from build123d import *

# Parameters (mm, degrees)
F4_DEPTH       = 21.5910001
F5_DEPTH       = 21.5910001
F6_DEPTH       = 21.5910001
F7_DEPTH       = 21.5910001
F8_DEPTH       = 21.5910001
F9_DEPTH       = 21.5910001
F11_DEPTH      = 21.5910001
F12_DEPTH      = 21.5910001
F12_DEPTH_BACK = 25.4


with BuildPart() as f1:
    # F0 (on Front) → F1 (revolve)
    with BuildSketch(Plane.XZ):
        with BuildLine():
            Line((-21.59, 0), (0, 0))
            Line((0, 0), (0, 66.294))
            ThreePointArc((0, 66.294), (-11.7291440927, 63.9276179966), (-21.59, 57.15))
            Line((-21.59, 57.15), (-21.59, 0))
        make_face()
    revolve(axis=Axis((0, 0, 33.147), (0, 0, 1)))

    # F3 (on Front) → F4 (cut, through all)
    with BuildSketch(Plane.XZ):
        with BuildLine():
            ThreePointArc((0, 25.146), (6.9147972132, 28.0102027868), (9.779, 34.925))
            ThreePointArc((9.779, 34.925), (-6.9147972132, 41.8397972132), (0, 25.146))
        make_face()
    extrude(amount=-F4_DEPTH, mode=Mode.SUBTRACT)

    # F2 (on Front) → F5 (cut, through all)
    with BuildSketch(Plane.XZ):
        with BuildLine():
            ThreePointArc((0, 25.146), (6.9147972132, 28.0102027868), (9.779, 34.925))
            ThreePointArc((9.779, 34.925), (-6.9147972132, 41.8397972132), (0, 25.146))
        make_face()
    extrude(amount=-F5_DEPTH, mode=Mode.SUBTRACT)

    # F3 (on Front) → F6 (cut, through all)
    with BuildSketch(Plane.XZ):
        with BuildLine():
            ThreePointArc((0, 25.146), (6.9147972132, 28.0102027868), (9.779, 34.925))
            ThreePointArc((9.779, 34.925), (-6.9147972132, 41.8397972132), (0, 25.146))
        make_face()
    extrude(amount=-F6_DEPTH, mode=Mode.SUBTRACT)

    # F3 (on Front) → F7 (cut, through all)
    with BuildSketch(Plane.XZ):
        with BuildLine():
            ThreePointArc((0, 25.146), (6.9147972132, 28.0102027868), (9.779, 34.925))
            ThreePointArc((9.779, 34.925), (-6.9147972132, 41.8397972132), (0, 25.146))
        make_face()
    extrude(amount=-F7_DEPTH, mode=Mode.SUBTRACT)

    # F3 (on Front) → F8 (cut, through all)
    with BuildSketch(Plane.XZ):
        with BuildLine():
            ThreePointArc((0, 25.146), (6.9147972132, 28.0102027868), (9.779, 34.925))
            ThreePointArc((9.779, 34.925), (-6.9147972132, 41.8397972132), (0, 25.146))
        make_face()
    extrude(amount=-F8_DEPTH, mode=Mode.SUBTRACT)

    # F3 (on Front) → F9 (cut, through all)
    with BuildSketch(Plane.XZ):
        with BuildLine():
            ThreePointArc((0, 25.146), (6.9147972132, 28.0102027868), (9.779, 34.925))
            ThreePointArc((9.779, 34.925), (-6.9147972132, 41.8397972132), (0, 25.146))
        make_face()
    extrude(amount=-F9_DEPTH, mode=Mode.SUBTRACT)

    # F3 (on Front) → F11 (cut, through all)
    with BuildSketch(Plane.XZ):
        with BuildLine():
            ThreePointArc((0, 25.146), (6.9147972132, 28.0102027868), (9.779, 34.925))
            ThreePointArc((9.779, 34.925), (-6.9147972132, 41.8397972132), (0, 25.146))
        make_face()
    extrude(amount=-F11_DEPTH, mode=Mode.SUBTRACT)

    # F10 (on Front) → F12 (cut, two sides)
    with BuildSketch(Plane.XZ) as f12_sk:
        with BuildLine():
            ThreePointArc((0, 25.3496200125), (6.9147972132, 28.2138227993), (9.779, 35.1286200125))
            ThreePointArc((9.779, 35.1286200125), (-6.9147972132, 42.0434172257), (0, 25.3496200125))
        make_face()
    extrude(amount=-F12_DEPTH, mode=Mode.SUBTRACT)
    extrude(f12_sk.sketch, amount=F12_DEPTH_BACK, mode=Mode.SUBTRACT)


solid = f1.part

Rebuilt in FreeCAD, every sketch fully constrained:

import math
import FreeCAD as App
import Part
import Sketcher
Q = App.Units.Quantity

doc = App.newDocument("Part")
body = doc.addObject("PartDesign::Body", "Body")

# Sketch on XZ plane
sketch1 = body.newObject("Sketcher::SketchObject", "Sketch")
sketch1.AttachmentSupport = (doc.getObject("XZ_Plane"), [""])
sketch1.MapMode = "FlatFace"
sketch1.addGeometry([
    Part.LineSegment(App.Vector(-21.59, 0, 0), App.Vector(0, 0, 0)),
    Part.LineSegment(App.Vector(0, 0, 0), App.Vector(0, 66.294, 0)),
    Part.ArcOfCircle(Part.Circle(App.Vector(-0.073657, 36.407717, 0), App.Vector(0, 0, 1), 29.886373), math.radians(89.858791), math.radians(136.049382)),
    Part.LineSegment(App.Vector(-21.59, 57.15, 0), App.Vector(-21.59, 0, 0)),
], False)
sketch1.addConstraint([
    Sketcher.Constraint("Coincident", 0, 2, 1, 1),
    Sketcher.Constraint("Coincident", 1, 2, 2, 1),
    Sketcher.Constraint("Coincident", 2, 2, 3, 1),
    Sketcher.Constraint("Coincident", 3, 2, 0, 1),
    Sketcher.Constraint("Horizontal", 0),
    Sketcher.Constraint("Vertical", 1),
    Sketcher.Constraint("Vertical", 3),
    Sketcher.Constraint("Coincident", 0, 2, -1, 1),
    Sketcher.Constraint("DistanceX", 0, 1, 0, 2, Q("0.85 in")),
    Sketcher.Constraint("DistanceY", 1, 1, 1, 2, Q("2.61 in")),
    Sketcher.Constraint("DistanceY", 3, 2, 3, 1, Q("2.25 in")),
    Sketcher.Constraint("DistanceX", 2, 3, -1, 1, Q("0.0028999 in")),
])
revolution = body.newObject("PartDesign::Revolution", "Revolution")
revolution.Profile = sketch1
revolution.ReferenceAxis = (sketch1, ["V_Axis"])
revolution.Angle = 360

# Sketch on XZ plane
sketch2 = body.newObject("Sketcher::SketchObject", "Sketch001")
sketch2.AttachmentSupport = (doc.getObject("XZ_Plane"), [""])
sketch2.MapMode = "FlatFace"
sketch2.addGeometry([
    Part.ArcOfCircle(Part.Circle(App.Vector(0, 34.925, 0), App.Vector(0, 0, 1), 9.779), math.radians(-90), math.radians(0)),
    Part.ArcOfCircle(Part.Circle(App.Vector(0, 34.925, 0), App.Vector(0, 0, 1), 9.779), math.radians(0), math.radians(270)),
], False)
sketch2.addConstraint([
    Sketcher.Constraint("Tangent", 0, 1, 1, 2),
    Sketcher.Constraint("Coincident", 1, 1, 0, 2),
    Sketcher.Constraint("PointOnObject", 0, 3, -2),
    Sketcher.Constraint("PointOnObject", 0, 1, -2),
    Sketcher.Constraint("Horizontal", 0, 3, 1, 1),
    Sketcher.Constraint("Radius", 0, Q("0.385 in")),
    Sketcher.Constraint("DistanceY", -1, 1, 0, 1, Q("0.99 in")),
])
pocket1 = body.newObject("PartDesign::Pocket", "Pocket")
pocket1.Profile = sketch2
pocket1.Type = "ThroughAll"

# Sketch on XZ plane
sketch3 = body.newObject("Sketcher::SketchObject", "Sketch002")
sketch3.AttachmentSupport = (doc.getObject("XZ_Plane"), [""])
sketch3.MapMode = "FlatFace"
sketch3.addGeometry([
    Part.ArcOfCircle(Part.Circle(App.Vector(0, 34.925, 0), App.Vector(0, 0, 1), 9.779), math.radians(-90), math.radians(0)),
    Part.ArcOfCircle(Part.Circle(App.Vector(0, 34.925, 0), App.Vector(0, 0, 1), 9.779), math.radians(0), math.radians(270)),
], False)
sketch3.addConstraint([
    Sketcher.Constraint("Tangent", 0, 1, 1, 2),
    Sketcher.Constraint("Coincident", 1, 1, 0, 2),
    Sketcher.Constraint("PointOnObject", 0, 3, -2),
    Sketcher.Constraint("PointOnObject", 0, 1, -2),
    Sketcher.Constraint("Horizontal", 0, 3, 1, 1),
    Sketcher.Constraint("Radius", 0, Q("0.385 in")),
    Sketcher.Constraint("DistanceY", -1, 1, 0, 1, Q("0.99 in")),
])
pocket2 = body.newObject("PartDesign::Pocket", "Pocket001")
pocket2.Profile = sketch3
pocket2.Type = "ThroughAll"

# Sketch on XZ plane
sketch4 = body.newObject("Sketcher::SketchObject", "Sketch003")
sketch4.AttachmentSupport = (doc.getObject("XZ_Plane"), [""])
sketch4.MapMode = "FlatFace"
sketch4.addGeometry([
    Part.ArcOfCircle(Part.Circle(App.Vector(0, 34.925, 0), App.Vector(0, 0, 1), 9.779), math.radians(-90), math.radians(0)),
    Part.ArcOfCircle(Part.Circle(App.Vector(0, 34.925, 0), App.Vector(0, 0, 1), 9.779), math.radians(0), math.radians(270)),
], False)
sketch4.addConstraint([
    Sketcher.Constraint("Tangent", 0, 1, 1, 2),
    Sketcher.Constraint("Coincident", 1, 1, 0, 2),
    Sketcher.Constraint("PointOnObject", 0, 3, -2),
    Sketcher.Constraint("PointOnObject", 0, 1, -2),
    Sketcher.Constraint("Horizontal", 0, 3, 1, 1),
    Sketcher.Constraint("Radius", 0, Q("0.385 in")),
    Sketcher.Constraint("DistanceY", -1, 1, 0, 1, Q("0.99 in")),
])
pocket3 = body.newObject("PartDesign::Pocket", "Pocket002")
pocket3.Profile = sketch4
pocket3.Type = "ThroughAll"

# Sketch on XZ plane
sketch5 = body.newObject("Sketcher::SketchObject", "Sketch004")
sketch5.AttachmentSupport = (doc.getObject("XZ_Plane"), [""])
sketch5.MapMode = "FlatFace"
sketch5.addGeometry([
    Part.ArcOfCircle(Part.Circle(App.Vector(0, 34.925, 0), App.Vector(0, 0, 1), 9.779), math.radians(-90), math.radians(0)),
    Part.ArcOfCircle(Part.Circle(App.Vector(0, 34.925, 0), App.Vector(0, 0, 1), 9.779), math.radians(0), math.radians(270)),
], False)
sketch5.addConstraint([
    Sketcher.Constraint("Tangent", 0, 1, 1, 2),
    Sketcher.Constraint("Coincident", 1, 1, 0, 2),
    Sketcher.Constraint("PointOnObject", 0, 3, -2),
    Sketcher.Constraint("PointOnObject", 0, 1, -2),
    Sketcher.Constraint("Horizontal", 0, 3, 1, 1),
    Sketcher.Constraint("Radius", 0, Q("0.385 in")),
    Sketcher.Constraint("DistanceY", -1, 1, 0, 1, Q("0.99 in")),
])
pocket4 = body.newObject("PartDesign::Pocket", "Pocket003")
pocket4.Profile = sketch5
pocket4.Type = "ThroughAll"

# Sketch on XZ plane
sketch6 = body.newObject("Sketcher::SketchObject", "Sketch005")
sketch6.AttachmentSupport = (doc.getObject("XZ_Plane"), [""])
sketch6.MapMode = "FlatFace"
sketch6.addGeometry([
    Part.ArcOfCircle(Part.Circle(App.Vector(0, 34.925, 0), App.Vector(0, 0, 1), 9.779), math.radians(-90), math.radians(0)),
    Part.ArcOfCircle(Part.Circle(App.Vector(0, 34.925, 0), App.Vector(0, 0, 1), 9.779), math.radians(0), math.radians(270)),
], False)
sketch6.addConstraint([
    Sketcher.Constraint("Tangent", 0, 1, 1, 2),
    Sketcher.Constraint("Coincident", 1, 1, 0, 2),
    Sketcher.Constraint("PointOnObject", 0, 3, -2),
    Sketcher.Constraint("PointOnObject", 0, 1, -2),
    Sketcher.Constraint("Horizontal", 0, 3, 1, 1),
    Sketcher.Constraint("Radius", 0, Q("0.385 in")),
    Sketcher.Constraint("DistanceY", -1, 1, 0, 1, Q("0.99 in")),
])
pocket5 = body.newObject("PartDesign::Pocket", "Pocket004")
pocket5.Profile = sketch6
pocket5.Type = "ThroughAll"

# Sketch on XZ plane
sketch7 = body.newObject("Sketcher::SketchObject", "Sketch006")
sketch7.AttachmentSupport = (doc.getObject("XZ_Plane"), [""])
sketch7.MapMode = "FlatFace"
sketch7.addGeometry([
    Part.ArcOfCircle(Part.Circle(App.Vector(0, 34.925, 0), App.Vector(0, 0, 1), 9.779), math.radians(-90), math.radians(0)),
    Part.ArcOfCircle(Part.Circle(App.Vector(0, 34.925, 0), App.Vector(0, 0, 1), 9.779), math.radians(0), math.radians(270)),
], False)
sketch7.addConstraint([
    Sketcher.Constraint("Tangent", 0, 1, 1, 2),
    Sketcher.Constraint("Coincident", 1, 1, 0, 2),
    Sketcher.Constraint("PointOnObject", 0, 3, -2),
    Sketcher.Constraint("PointOnObject", 0, 1, -2),
    Sketcher.Constraint("Horizontal", 0, 3, 1, 1),
    Sketcher.Constraint("Radius", 0, Q("0.385 in")),
    Sketcher.Constraint("DistanceY", -1, 1, 0, 1, Q("0.99 in")),
])
pocket6 = body.newObject("PartDesign::Pocket", "Pocket005")
pocket6.Profile = sketch7
pocket6.Type = "ThroughAll"

# Sketch on XZ plane
sketch8 = body.newObject("Sketcher::SketchObject", "Sketch007")
sketch8.AttachmentSupport = (doc.getObject("XZ_Plane"), [""])
sketch8.MapMode = "FlatFace"
sketch8.addGeometry([
    Part.ArcOfCircle(Part.Circle(App.Vector(0, 34.925, 0), App.Vector(0, 0, 1), 9.779), math.radians(-90), math.radians(0)),
    Part.ArcOfCircle(Part.Circle(App.Vector(0, 34.925, 0), App.Vector(0, 0, 1), 9.779), math.radians(0), math.radians(270)),
], False)
sketch8.addConstraint([
    Sketcher.Constraint("Tangent", 0, 1, 1, 2),
    Sketcher.Constraint("Coincident", 1, 1, 0, 2),
    Sketcher.Constraint("PointOnObject", 0, 3, -2),
    Sketcher.Constraint("PointOnObject", 0, 1, -2),
    Sketcher.Constraint("Horizontal", 0, 3, 1, 1),
    Sketcher.Constraint("Radius", 0, Q("0.385 in")),
    Sketcher.Constraint("DistanceY", -1, 1, 0, 1, Q("0.99 in")),
])
pocket7 = body.newObject("PartDesign::Pocket", "Pocket006")
pocket7.Profile = sketch8
pocket7.Type = "ThroughAll"

# Sketch on XZ plane
sketch9 = body.newObject("Sketcher::SketchObject", "Sketch008")
sketch9.AttachmentSupport = (doc.getObject("XZ_Plane"), [""])
sketch9.MapMode = "FlatFace"
sketch9.addGeometry([
    Part.ArcOfCircle(Part.Circle(App.Vector(0, 35.12862, 0), App.Vector(0, 0, 1), 9.779), math.radians(-90), math.radians(0)),
    Part.ArcOfCircle(Part.Circle(App.Vector(0, 35.12862, 0), App.Vector(0, 0, 1), 9.779), math.radians(0), math.radians(270)),
], False)
sketch9.addConstraint([
    Sketcher.Constraint("Tangent", 0, 1, 1, 2),
    Sketcher.Constraint("Coincident", 1, 1, 0, 2),
    Sketcher.Constraint("PointOnObject", 0, 3, -2),
    Sketcher.Constraint("PointOnObject", 0, 1, -2),
    Sketcher.Constraint("Horizontal", 0, 3, 1, 1),
    Sketcher.Constraint("Radius", 0, Q("0.385 in")),
    Sketcher.Constraint("DistanceY", -1, 1, 0, 3, 35.12862),
])
pocket8 = body.newObject("PartDesign::Pocket", "Pocket007")
pocket8.Profile = sketch9
pocket8.Type = "ThroughAll"
pocket8.Midplane = True

doc.recompute()
